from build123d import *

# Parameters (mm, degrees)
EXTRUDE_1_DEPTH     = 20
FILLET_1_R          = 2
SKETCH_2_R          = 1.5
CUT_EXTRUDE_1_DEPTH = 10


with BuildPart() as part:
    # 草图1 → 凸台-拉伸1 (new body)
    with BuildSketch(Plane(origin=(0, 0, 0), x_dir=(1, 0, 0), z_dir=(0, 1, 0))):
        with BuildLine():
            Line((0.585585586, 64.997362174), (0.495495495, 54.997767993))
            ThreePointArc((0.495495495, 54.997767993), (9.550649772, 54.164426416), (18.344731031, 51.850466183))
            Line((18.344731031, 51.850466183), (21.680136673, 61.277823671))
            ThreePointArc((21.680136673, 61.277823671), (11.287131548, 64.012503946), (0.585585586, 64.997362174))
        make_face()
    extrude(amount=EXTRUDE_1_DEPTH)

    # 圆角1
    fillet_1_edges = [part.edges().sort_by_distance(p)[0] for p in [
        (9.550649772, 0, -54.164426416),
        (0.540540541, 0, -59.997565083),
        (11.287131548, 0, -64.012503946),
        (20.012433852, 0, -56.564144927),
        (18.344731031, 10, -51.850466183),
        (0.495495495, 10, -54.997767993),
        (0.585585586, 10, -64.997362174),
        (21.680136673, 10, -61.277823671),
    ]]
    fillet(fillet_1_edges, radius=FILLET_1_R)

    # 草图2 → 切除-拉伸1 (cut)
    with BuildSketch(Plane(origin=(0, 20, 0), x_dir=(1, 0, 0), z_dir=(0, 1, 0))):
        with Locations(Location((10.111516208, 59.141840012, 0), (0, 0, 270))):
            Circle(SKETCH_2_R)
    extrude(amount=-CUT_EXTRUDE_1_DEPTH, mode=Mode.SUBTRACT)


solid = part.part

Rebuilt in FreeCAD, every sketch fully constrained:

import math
import FreeCAD as App
import Part
import Sketcher
from FreeCAD import Vector


def edges_at(feature, points):
    """Names of the edges that pass closest to the given points."""
    edges = feature.Shape.Edges
    near = lambda p: min(range(len(edges)), key=lambda i: edges[i].distToShape(Part.Vertex(*p))[0])
    return sorted({f"Edge{near(p) + 1}" for p in points})

doc = App.newDocument("Part")
body = doc.addObject("PartDesign::Body", "Body")

sketch1 = body.newObject("Sketcher::SketchObject", "Sketch")
sketch1.AttachmentSupport = (doc.getObject("XZ_Plane"), [""])
sketch1.MapMode = "FlatFace"
sketch1.addGeometry(Part.LineSegment(Vector(0.585586, -64.997362, 0), Vector(0.495495, -54.997768, 0)), False)
sketch1.addGeometry(Part.ArcOfCircle(Part.Circle(Vector(0, 0, 0), Vector(0, 0, 1), 55), math.radians(-89.483815), math.radians(-70.516185)), False)
sketch1.addGeometry(Part.LineSegment(Vector(18.344731, -51.850466, 0), Vector(21.680137, -61.277824, 0)), False)
sketch1.addGeometry(Part.ArcOfCircle(Part.Circle(Vector(0, 0, 0), Vector(0, 0, 1), 65), math.radians(-89.483815), math.radians(-70.516185)), False)
sketch1.addConstraint(Sketcher.Constraint("Coincident", 0, 2, 1, 1))
sketch1.addConstraint(Sketcher.Constraint("Coincident", 1, 2, 2, 1))
sketch1.addConstraint(Sketcher.Constraint("Coincident", 2, 2, 3, 2))
sketch1.addConstraint(Sketcher.Constraint("Coincident", 3, 1, 0, 1))
sketch1.addConstraint(Sketcher.Constraint("Coincident", 1, 3, -1, 1))
sketch1.addConstraint(Sketcher.Constraint("Coincident", 3, 3, -1, 1))
sketch1.addConstraint(Sketcher.Constraint("Radius", 1, 55.0))
sketch1.addConstraint(Sketcher.Constraint("Radius", 3, 65.0))
sketch1.addConstraint(Sketcher.Constraint("DistanceY", 0, 2, 1, 2, 3.147302))
sketch1.addConstraint(Sketcher.Constraint("DistanceY", 0, 2, 3, 3, 54.997768))
sketch1.addConstraint(Sketcher.Constraint("DistanceX", 0, 2, 2, 2, 21.184641))
sketch1.addConstraint(Sketcher.Constraint("DistanceX", 0, 2, 3, 1, 0.09009))
pad1 = body.newObject("PartDesign::Pad", "Pad")
pad1.Profile = sketch1
pad1.Length = 20
pad1.Reversed = True
doc.recompute()

fillet = body.newObject("PartDesign::Fillet", "Fillet")
fillet.Base = (pad1, edges_at(pad1, [
    (9.551, 0, -54.164),
    (0.541, 0, -59.998),
    (11.287, 0, -64.013),
    (20.012, 0, -56.564),
    (18.345, 10, -51.85),
    (0.495, 10, -54.998),
    (0.586, 10, -64.997),
    (21.68, 10, -61.278),
]))
fillet.Radius = 2

sketch2 = body.newObject("Sketcher::SketchObject", "Sketch001")
sketch2.AttachmentSupport = (doc.getObject("XZ_Plane"), [""])
sketch2.MapMode = "FlatFace"
sketch2.AttachmentOffset = App.Placement(Vector(0, 0, -20), App.Rotation())
sketch2.addGeometry(Part.Circle(Vector(10.1, -59.1, 0), Vector(0, 0, 1), 1.5), False)
sketch2.addConstraint(Sketcher.Constraint("Diameter", 0, 3.0))
sketch2.addConstraint(Sketcher.Constraint("DistanceY", 0, 3, -1, 1, 59.14184))
sketch2.addConstraint(Sketcher.Constraint("DistanceX", -1, 1, 0, 3, 10.111516))
pocket1 = body.newObject("PartDesign::Pocket", "Pocket")
pocket1.Profile = sketch2
pocket1.Length = 10
pocket1.Reversed = True

doc.recompute()
